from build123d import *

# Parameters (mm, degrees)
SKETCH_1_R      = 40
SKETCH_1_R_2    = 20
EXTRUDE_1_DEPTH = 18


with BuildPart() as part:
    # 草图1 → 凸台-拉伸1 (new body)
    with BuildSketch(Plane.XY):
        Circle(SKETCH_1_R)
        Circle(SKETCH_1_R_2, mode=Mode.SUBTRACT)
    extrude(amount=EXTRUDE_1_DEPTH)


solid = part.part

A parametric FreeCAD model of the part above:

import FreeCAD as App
import Part
import Sketcher
Q = App.Units.Quantity

doc = App.newDocument("Part")
body = doc.addObject("PartDesign::Body", "Body")

# Sketch on XY plane
sketch1 = doc.addObject("Sketcher::SketchObject", "Sketch")
body.addObject(sketch1)
sketch1.AttachmentSupport = (doc.XY_Plane, [""])
sketch1.MapMode = "FlatFace"
sketch1.addGeometry(Part.Circle(App.Vector(0, 0, 0), App.Vector(0, 0, 1), 40), False)
sketch1.addGeometry(Part.Circle(App.Vector(0, 0, 0), App.Vector(0, 0, 1), 20), False)
sketch1.addConstraint(Sketcher.Constraint("Coincident", 0, 3, -1, 1))
sketch1.addConstraint(Sketcher.Constraint("Coincident", 1, 3, -1, 1))
sketch1.addConstraint(Sketcher.Constraint("Diameter", 0, Q("80 mm")))
sketch1.addConstraint(Sketcher.Constraint("Diameter", 1, Q("40 mm")))
pad1 = doc.addObject("PartDesign::Pad", "Pad")
body.addObject(pad1)
pad1.Profile = sketch1
pad1.Length = 18

doc.recompute()
